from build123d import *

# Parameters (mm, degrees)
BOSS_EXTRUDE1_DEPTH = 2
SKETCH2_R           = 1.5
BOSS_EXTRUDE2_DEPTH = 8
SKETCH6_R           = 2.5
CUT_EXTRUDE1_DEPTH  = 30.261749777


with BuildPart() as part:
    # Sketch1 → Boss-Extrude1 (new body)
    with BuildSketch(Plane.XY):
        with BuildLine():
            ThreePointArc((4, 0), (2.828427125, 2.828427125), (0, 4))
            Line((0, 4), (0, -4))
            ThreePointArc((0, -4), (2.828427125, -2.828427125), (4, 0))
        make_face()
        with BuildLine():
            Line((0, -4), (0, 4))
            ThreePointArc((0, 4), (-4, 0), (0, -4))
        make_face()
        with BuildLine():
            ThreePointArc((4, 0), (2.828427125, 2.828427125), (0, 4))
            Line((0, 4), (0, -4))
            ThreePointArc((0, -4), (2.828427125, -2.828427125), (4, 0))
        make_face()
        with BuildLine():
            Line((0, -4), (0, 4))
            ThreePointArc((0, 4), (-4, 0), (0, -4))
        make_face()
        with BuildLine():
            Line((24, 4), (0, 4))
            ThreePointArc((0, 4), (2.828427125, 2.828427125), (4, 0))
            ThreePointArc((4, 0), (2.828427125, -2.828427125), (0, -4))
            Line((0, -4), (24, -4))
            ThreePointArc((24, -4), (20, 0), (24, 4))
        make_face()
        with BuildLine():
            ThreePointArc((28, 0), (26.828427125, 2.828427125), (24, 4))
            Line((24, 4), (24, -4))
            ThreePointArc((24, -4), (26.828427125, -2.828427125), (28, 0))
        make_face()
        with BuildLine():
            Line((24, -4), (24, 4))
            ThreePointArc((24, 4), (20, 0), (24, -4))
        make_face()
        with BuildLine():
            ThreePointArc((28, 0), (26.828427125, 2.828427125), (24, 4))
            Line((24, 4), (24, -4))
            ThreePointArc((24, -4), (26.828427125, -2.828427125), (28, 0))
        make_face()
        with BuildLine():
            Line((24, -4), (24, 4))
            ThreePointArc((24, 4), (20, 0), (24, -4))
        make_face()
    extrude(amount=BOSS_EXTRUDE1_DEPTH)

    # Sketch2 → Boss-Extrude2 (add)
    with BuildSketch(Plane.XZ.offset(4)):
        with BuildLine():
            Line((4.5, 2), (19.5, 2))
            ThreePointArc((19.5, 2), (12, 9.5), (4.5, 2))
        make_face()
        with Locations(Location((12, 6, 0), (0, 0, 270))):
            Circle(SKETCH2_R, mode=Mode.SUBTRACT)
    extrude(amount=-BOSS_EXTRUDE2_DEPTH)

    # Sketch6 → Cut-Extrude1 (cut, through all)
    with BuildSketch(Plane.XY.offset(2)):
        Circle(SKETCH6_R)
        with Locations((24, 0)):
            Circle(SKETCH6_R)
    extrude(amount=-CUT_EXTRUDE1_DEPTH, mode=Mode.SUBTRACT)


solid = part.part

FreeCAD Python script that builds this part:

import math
import FreeCAD as App
import Part
import Sketcher

V = App.Vector
Q = App.Units.Quantity

doc = App.newDocument("Part")
body = doc.addObject("PartDesign::Body", "Body")

# Sketch on XY plane
sketch1 = body.newObject("Sketcher::SketchObject", "Sketch")
sketch1.AttachmentSupport = (doc.getObject("XY_Plane"), [""])
sketch1.MapMode = "FlatFace"
sketch1.addGeometry(Part.LineSegment(V(0, -4, 0), V(24, -4, 0)), False)
sketch1.addGeometry(Part.ArcOfCircle(Part.Circle(V(24, 0, 0), V(0, 0, 1), 4), math.radians(-90), math.radians(0)), False)
sketch1.addGeometry(Part.ArcOfCircle(Part.Circle(V(24, 0, 0), V(0, 0, 1), 4), math.radians(0), math.radians(90)), False)
sketch1.addGeometry(Part.LineSegment(V(24, 4, 0), V(0, 4, 0)), False)
sketch1.addGeometry(Part.ArcOfCircle(Part.Circle(V(0, 0, 0), V(0, 0, 1), 4), math.radians(90), math.radians(270)), False)
sketch1.addConstraint(Sketcher.Constraint("Tangent", 0, 2, 1, 1))
sketch1.addConstraint(Sketcher.Constraint("Tangent", 1, 2, 2, 1))
sketch1.addConstraint(Sketcher.Constraint("Tangent", 2, 2, 3, 1))
sketch1.addConstraint(Sketcher.Constraint("Tangent", 3, 2, 4, 1))
sketch1.addConstraint(Sketcher.Constraint("Tangent", 4, 2, 0, 1))
sketch1.addConstraint(Sketcher.Constraint("Horizontal", 0))
sketch1.addConstraint(Sketcher.Constraint("Horizontal", 3))
sketch1.addConstraint(Sketcher.Constraint("Coincident", 4, 3, -1, 1))
sketch1.addConstraint(Sketcher.Constraint("Equal", 1, 2))
sketch1.addConstraint(Sketcher.Constraint("PointOnObject", 1, 2, -1))
sketch1.addConstraint(Sketcher.Constraint("Radius", 1, Q("4 mm")))
sketch1.addConstraint(Sketcher.Constraint("DistanceX", 0, 1, 0, 2, Q("24 mm")))
pad1 = body.newObject("PartDesign::Pad", "Pad")
pad1.Profile = sketch1
pad1.Length = 2

# Sketch on XZ plane
sketch2 = body.newObject("Sketcher::SketchObject", "Sketch001")
sketch2.AttachmentSupport = (doc.getObject("XZ_Plane"), [""])
sketch2.MapMode = "FlatFace"
sketch2.AttachmentOffset = App.Placement(V(0, 0, 4), App.Rotation())
sketch2.addGeometry(Part.LineSegment(V(4.5, 2, 0), V(19.5, 2, 0)), False)
sketch2.addGeometry(Part.ArcOfCircle(Part.Circle(V(12, 2, 0), V(0, 0, 1), 7.5), math.radians(0), math.radians(180)), False)
sketch2.addGeometry(Part.Circle(V(12, 6, 0), V(0, 0, 1), 1.5), False)
sketch2.addConstraint(Sketcher.Constraint("Coincident", 0, 1, 1, 2))
sketch2.addConstraint(Sketcher.Constraint("Coincident", 1, 1, 0, 2))
sketch2.addConstraint(Sketcher.Constraint("Horizontal", 0))
sketch2.addConstraint(Sketcher.Constraint("Horizontal", 1, 3, 0, 1))
sketch2.addConstraint(Sketcher.Constraint("Vertical", 1, 3, 2, 3))
sketch2.addConstraint(Sketcher.Constraint("Diameter", 2, Q("3 mm")))
sketch2.addConstraint(Sketcher.Constraint("Radius", 1, Q("7.5 mm")))
sketch2.addConstraint(Sketcher.Constraint("DistanceX", -1, 1, 1, 3, Q("12 mm")))
sketch2.addConstraint(Sketcher.Constraint("DistanceY", -1, 1, 1, 3, Q("2 mm")))
sketch2.addConstraint(Sketcher.Constraint("DistanceY", -1, 1, 2, 3, Q("6 mm")))
pad2 = body.newObject("PartDesign::Pad", "Pad001")
pad2.Profile = sketch2
pad2.Length = 8
pad2.Reversed = True

# Sketch on XY plane
sketch3 = body.newObject("Sketcher::SketchObject", "Sketch002")
sketch3.AttachmentSupport = (doc.getObject("XY_Plane"), [""])
sketch3.MapMode = "FlatFace"
sketch3.AttachmentOffset = App.Placement(V(0, 0, 2), App.Rotation())
sketch3.addGeometry(Part.Circle(V(0, 0, 0), V(0, 0, 1), 2.5), False)
sketch3.addGeometry(Part.Circle(V(24, 0, 0), V(0, 0, 1), 2.5), False)
sketch3.addConstraint(Sketcher.Constraint("Coincident", 0, 3, -1, 1))
sketch3.addConstraint(Sketcher.Constraint("Equal", 0, 1))
sketch3.addConstraint(Sketcher.Constraint("PointOnObject", 1, 3, -1))
sketch3.addConstraint(Sketcher.Constraint("Diameter", 0, Q("5 mm")))
sketch3.addConstraint(Sketcher.Constraint("DistanceX", -1, 1, 1, 3, Q("24 mm")))
pocket1 = body.newObject("PartDesign::Pocket", "Pocket")
pocket1.Profile = sketch3
pocket1.Type = "ThroughAll"

doc.recompute()
